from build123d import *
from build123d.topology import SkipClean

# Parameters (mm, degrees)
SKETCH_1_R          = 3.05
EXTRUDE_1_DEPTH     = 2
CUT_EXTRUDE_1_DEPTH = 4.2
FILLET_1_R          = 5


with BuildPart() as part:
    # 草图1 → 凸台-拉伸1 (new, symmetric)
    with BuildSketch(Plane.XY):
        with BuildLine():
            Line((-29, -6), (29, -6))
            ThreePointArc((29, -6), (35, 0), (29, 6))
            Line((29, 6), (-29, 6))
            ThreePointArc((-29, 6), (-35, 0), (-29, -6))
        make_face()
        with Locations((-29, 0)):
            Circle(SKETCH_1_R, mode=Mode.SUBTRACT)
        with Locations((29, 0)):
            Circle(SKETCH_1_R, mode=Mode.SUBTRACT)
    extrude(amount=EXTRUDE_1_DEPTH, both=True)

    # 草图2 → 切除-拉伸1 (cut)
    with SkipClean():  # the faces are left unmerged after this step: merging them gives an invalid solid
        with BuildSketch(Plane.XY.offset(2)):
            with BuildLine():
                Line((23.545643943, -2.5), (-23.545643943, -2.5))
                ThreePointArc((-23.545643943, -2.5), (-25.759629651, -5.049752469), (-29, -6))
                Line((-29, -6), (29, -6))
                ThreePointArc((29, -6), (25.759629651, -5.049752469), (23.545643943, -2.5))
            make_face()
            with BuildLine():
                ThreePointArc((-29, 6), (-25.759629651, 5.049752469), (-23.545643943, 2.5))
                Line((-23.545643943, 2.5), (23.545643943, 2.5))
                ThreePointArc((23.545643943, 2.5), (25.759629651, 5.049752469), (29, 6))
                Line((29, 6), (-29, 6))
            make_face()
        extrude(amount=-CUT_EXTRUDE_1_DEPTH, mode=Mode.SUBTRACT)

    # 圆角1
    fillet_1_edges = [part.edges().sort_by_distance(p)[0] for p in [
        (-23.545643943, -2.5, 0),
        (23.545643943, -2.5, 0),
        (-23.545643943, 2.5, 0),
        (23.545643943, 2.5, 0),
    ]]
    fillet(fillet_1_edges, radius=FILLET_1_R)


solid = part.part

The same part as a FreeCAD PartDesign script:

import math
import FreeCAD as App
import Part
import Sketcher

V = App.Vector
Q = App.Units.Quantity


def edges_at(feature, points):
    """Names of the edges that pass closest to the given points."""
    edges = feature.Shape.Edges
    near = lambda p: min(range(len(edges)), key=lambda i: edges[i].distToShape(Part.Vertex(*p))[0])
    return sorted({f"Edge{near(p) + 1}" for p in points})

doc = App.newDocument("Part")
body = doc.addObject("PartDesign::Body", "Body")

# Sketch on XY plane
sketch1 = body.newObject("Sketcher::SketchObject", "Sketch")
sketch1.AttachmentSupport = (doc.getObject("XY_Plane"), [""])
sketch1.MapMode = "FlatFace"
sketch1.addGeometry([
    Part.LineSegment(V(-29, -6, 0), V(29, -6, 0)),  # 0
    Part.ArcOfCircle(Part.Circle(V(29, 0, 0), V(0, 0, 1), 6), math.radians(-90), math.radians(90)),  # 1
    Part.LineSegment(V(29, 6, 0), V(-29, 6, 0)),  # 2
    Part.ArcOfCircle(Part.Circle(V(-29, 0, 0), V(0, 0, 1), 6), math.radians(90), math.radians(270)),  # 3
    Part.Circle(V(-29, 0, 0), V(0, 0, 1), 3),  # 4
    Part.Circle(V(29, 0, 0), V(0, 0, 1), 3),  # 5
], False)
sketch1.addConstraint([
    Sketcher.Constraint("Tangent", 0, 2, 1, 1),
    Sketcher.Constraint("Tangent", 1, 2, 2, 1),
    Sketcher.Constraint("Tangent", 2, 2, 3, 1),
    Sketcher.Constraint("Tangent", 3, 2, 0, 1),
    Sketcher.Constraint("Horizontal", 0),
    Sketcher.Constraint("Horizontal", 2),
    Sketcher.Constraint("Coincident", 4, 3, 3, 3),
    Sketcher.Constraint("Coincident", 5, 3, 1, 3),
    Sketcher.Constraint("Equal", 4, 5),
    Sketcher.Constraint("Symmetric", 1, 3, 3, 3, -1, 1),
    Sketcher.Constraint("Radius", 1, Q("6 mm")),
    Sketcher.Constraint("Diameter", 4, Q("6.1 mm")),
    Sketcher.Constraint("DistanceX", 0, 1, 0, 2, Q("58 mm")),
])
pad1 = body.newObject("PartDesign::Pad", "Pad")
pad1.Profile = sketch1
pad1.Length = 4
pad1.Midplane = True

# Sketch on XY plane
sketch2 = body.newObject("Sketcher::SketchObject", "Sketch001")
sketch2.AttachmentSupport = (doc.getObject("XY_Plane"), [""])
sketch2.MapMode = "FlatFace"
sketch2.AttachmentOffset = App.Placement(V(0, 0, 2), App.Rotation())
sketch2.addGeometry([
    Part.LineSegment(V(24, -2, 0), V(-24, -2, 0)),  # 0
    Part.ArcOfCircle(Part.Circle(V(-29, 0, 0), V(0, 0, 1), 6), math.radians(-90), math.radians(-25)),  # 1
    Part.LineSegment(V(-29, -6, 0), V(29, -6, 0)),  # 2
    Part.ArcOfCircle(Part.Circle(V(29, 0, 0), V(0, 0, 1), 6), math.radians(-155), math.radians(-90)),  # 3
    Part.ArcOfCircle(Part.Circle(V(-29, 0, 0), V(0, 0, 1), 6), math.radians(25), math.radians(90)),  # 4
    Part.LineSegment(V(-24, 2, 0), V(24, 2, 0)),  # 5
    Part.ArcOfCircle(Part.Circle(V(29, 0, 0), V(0, 0, 1), 6), math.radians(90), math.radians(155)),  # 6
    Part.LineSegment(V(29, 6, 0), V(-29, 6, 0)),  # 7
], False)
sketch2.addConstraint([
    Sketcher.Constraint("Coincident", 0, 2, 1, 2),
    Sketcher.Constraint("Tangent", 1, 1, 2, 1),
    Sketcher.Constraint("Tangent", 2, 2, 3, 2),
    Sketcher.Constraint("Coincident", 3, 1, 0, 1),
    Sketcher.Constraint("Coincident", 4, 1, 5, 1),
    Sketcher.Constraint("Coincident", 5, 2, 6, 2),
    Sketcher.Constraint("Tangent", 6, 1, 7, 1),
    Sketcher.Constraint("Tangent", 7, 2, 4, 2),
    Sketcher.Constraint("Horizontal", 0),
    Sketcher.Constraint("Horizontal", 2),
    Sketcher.Constraint("Horizontal", 5),
    Sketcher.Constraint("Horizontal", 7),
    Sketcher.Constraint("Coincident", 4, 3, 1, 3),
    Sketcher.Constraint("Coincident", 6, 3, 3, 3),
    Sketcher.Constraint("Equal", 1, 3),
    Sketcher.Constraint("Equal", 3, 4),
    Sketcher.Constraint("Symmetric", 1, 3, 3, 3, -1, 1),
    Sketcher.Constraint("Vertical", 0, 2, 4, 1),
    Sketcher.Constraint("Radius", 1, Q("6 mm")),
    Sketcher.Constraint("DistanceX", 2, 1, 2, 2, Q("58 mm")),
    Sketcher.Constraint("DistanceY", 0, 2, 4, 1, Q("5 mm")),
])
pocket1 = body.newObject("PartDesign::Pocket", "Pocket")
pocket1.Profile = sketch2
pocket1.Length = 4.2
doc.recompute()

fillet = body.newObject("PartDesign::Fillet", "Fillet")
fillet.Base = (pocket1, edges_at(pocket1, [
    (-23.546, -2.5, 0),
    (23.546, -2.5, 0),
    (-23.546, 2.5, 0),
    (23.546, 2.5, 0),
]))
fillet.Radius = 5

doc.recompute()
